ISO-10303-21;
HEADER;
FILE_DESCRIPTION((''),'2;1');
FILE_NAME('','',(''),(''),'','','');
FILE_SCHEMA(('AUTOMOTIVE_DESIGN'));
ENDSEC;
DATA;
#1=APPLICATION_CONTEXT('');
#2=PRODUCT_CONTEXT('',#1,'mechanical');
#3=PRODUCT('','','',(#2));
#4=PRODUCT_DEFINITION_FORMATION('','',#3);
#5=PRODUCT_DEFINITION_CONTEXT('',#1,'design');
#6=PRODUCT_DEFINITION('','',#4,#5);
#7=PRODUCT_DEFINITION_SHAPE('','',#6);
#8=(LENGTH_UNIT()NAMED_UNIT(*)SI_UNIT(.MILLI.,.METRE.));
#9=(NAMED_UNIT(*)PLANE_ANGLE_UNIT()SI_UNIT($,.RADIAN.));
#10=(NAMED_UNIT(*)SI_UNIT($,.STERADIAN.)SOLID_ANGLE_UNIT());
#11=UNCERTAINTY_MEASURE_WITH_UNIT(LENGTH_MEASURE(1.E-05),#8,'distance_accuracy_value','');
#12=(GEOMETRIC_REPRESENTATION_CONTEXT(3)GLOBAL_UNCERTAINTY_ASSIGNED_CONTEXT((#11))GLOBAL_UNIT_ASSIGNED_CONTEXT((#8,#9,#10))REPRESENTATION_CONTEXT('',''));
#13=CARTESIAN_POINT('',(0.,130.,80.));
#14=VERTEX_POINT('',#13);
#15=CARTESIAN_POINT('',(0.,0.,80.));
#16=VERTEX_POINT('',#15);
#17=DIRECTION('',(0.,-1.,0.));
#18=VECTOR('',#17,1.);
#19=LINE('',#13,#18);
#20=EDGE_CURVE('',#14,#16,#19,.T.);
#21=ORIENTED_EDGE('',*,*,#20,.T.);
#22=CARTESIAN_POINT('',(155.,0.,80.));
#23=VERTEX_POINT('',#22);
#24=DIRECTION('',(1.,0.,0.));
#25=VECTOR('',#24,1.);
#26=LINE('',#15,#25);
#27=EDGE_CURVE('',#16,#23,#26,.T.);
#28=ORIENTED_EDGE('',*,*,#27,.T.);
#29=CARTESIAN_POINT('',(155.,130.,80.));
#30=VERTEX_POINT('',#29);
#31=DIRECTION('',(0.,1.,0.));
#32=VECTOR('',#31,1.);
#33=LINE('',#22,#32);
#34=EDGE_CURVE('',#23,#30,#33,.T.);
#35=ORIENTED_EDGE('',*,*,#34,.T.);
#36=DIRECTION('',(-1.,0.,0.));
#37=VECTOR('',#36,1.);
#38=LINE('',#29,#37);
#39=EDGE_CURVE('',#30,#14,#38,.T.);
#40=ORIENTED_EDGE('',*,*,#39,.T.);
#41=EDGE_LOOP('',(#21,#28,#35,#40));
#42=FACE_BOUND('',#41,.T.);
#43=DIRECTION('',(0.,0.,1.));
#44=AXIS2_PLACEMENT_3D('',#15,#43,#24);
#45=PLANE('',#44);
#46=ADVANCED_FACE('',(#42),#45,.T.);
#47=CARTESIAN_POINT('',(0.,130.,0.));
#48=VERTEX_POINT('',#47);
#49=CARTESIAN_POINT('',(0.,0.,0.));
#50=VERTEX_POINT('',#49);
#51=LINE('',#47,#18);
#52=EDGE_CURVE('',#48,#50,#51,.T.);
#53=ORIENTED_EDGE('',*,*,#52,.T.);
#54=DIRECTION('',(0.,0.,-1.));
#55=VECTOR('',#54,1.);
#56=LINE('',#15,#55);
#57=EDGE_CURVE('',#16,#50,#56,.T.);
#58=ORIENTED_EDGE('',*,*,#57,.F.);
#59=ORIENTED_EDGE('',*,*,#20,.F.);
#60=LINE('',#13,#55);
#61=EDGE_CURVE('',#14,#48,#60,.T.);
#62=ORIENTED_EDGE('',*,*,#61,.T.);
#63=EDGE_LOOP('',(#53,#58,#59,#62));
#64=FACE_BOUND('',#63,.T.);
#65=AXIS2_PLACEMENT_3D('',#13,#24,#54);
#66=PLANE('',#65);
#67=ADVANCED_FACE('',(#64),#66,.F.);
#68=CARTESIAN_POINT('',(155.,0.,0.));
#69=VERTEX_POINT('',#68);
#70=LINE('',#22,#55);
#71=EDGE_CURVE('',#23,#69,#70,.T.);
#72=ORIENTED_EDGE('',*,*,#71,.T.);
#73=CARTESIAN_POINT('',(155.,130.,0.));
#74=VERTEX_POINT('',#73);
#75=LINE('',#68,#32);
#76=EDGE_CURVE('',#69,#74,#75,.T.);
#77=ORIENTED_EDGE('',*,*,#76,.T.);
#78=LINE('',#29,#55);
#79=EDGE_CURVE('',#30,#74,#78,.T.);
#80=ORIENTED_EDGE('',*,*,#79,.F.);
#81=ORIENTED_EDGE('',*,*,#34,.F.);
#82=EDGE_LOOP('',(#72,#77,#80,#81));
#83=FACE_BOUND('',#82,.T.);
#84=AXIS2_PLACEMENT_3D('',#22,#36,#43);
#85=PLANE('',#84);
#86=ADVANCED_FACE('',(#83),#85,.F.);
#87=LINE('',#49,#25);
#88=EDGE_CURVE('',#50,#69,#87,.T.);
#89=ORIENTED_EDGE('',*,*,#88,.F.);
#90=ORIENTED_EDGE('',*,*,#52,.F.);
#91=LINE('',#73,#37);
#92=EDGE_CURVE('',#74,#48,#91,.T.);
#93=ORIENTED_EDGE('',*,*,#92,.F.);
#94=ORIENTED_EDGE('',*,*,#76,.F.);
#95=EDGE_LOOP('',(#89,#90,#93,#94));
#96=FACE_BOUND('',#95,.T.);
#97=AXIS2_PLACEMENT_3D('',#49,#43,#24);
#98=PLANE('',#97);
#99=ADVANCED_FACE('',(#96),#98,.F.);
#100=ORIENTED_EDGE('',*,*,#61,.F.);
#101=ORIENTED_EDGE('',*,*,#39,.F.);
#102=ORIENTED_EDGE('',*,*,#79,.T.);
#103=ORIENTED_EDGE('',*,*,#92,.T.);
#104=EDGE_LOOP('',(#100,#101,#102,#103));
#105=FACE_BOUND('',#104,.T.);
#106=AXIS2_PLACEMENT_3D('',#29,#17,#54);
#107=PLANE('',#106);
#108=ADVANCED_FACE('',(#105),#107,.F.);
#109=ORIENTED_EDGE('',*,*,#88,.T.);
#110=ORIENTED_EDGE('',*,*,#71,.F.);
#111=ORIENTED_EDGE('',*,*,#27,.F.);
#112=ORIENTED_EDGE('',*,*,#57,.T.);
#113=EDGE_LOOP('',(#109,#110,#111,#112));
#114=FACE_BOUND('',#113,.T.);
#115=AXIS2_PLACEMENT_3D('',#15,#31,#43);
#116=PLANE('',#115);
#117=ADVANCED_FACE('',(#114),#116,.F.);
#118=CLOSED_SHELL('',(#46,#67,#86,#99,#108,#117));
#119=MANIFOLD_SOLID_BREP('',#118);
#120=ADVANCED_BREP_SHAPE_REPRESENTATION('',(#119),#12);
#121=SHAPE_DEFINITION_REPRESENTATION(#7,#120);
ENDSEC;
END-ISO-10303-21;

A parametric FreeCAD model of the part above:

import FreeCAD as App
import Part
import Sketcher
Q = App.Units.Quantity


def add_polygon(sketch, points):
    """Adds a closed chain of lines whose ends are joined by coincident constraints."""
    first, n = sketch.GeometryCount, len(points)
    for a, b in zip(points, points[1:] + points[:1]):
        sketch.addGeometry(Part.LineSegment(App.Vector(*a, 0), App.Vector(*b, 0)), False)
    for i in range(n):
        sketch.addConstraint(Sketcher.Constraint("Coincident", first + i, 2, first + (i + 1) % n, 1))

doc = App.newDocument("Part")
body = doc.addObject("PartDesign::Body", "Body")

sketch1 = doc.addObject("Sketcher::SketchObject", "Sketch")
body.addObject(sketch1)
sketch1.AttachmentSupport = (doc.XY_Plane, [""])
sketch1.MapMode = "FlatFace"
add_polygon(sketch1, [(0, 130), (0, 0), (155, 0), (155, 130)])
sketch1.addConstraint(Sketcher.Constraint("Vertical", 0))
sketch1.addConstraint(Sketcher.Constraint("Horizontal", 1))
sketch1.addConstraint(Sketcher.Constraint("Vertical", 2))
sketch1.addConstraint(Sketcher.Constraint("Horizontal", 3))
sketch1.addConstraint(Sketcher.Constraint("Coincident", 0, 2, -1, 1))
sketch1.addConstraint(Sketcher.Constraint("DistanceX", 1, 1, 1, 2, Q("155 mm")))
sketch1.addConstraint(Sketcher.Constraint("DistanceY", 0, 2, 0, 1, Q("130 mm")))
pad1 = doc.addObject("PartDesign::Pad", "Pad")
body.addObject(pad1)
pad1.Profile = sketch1
pad1.Length = 80

doc.recompute()
